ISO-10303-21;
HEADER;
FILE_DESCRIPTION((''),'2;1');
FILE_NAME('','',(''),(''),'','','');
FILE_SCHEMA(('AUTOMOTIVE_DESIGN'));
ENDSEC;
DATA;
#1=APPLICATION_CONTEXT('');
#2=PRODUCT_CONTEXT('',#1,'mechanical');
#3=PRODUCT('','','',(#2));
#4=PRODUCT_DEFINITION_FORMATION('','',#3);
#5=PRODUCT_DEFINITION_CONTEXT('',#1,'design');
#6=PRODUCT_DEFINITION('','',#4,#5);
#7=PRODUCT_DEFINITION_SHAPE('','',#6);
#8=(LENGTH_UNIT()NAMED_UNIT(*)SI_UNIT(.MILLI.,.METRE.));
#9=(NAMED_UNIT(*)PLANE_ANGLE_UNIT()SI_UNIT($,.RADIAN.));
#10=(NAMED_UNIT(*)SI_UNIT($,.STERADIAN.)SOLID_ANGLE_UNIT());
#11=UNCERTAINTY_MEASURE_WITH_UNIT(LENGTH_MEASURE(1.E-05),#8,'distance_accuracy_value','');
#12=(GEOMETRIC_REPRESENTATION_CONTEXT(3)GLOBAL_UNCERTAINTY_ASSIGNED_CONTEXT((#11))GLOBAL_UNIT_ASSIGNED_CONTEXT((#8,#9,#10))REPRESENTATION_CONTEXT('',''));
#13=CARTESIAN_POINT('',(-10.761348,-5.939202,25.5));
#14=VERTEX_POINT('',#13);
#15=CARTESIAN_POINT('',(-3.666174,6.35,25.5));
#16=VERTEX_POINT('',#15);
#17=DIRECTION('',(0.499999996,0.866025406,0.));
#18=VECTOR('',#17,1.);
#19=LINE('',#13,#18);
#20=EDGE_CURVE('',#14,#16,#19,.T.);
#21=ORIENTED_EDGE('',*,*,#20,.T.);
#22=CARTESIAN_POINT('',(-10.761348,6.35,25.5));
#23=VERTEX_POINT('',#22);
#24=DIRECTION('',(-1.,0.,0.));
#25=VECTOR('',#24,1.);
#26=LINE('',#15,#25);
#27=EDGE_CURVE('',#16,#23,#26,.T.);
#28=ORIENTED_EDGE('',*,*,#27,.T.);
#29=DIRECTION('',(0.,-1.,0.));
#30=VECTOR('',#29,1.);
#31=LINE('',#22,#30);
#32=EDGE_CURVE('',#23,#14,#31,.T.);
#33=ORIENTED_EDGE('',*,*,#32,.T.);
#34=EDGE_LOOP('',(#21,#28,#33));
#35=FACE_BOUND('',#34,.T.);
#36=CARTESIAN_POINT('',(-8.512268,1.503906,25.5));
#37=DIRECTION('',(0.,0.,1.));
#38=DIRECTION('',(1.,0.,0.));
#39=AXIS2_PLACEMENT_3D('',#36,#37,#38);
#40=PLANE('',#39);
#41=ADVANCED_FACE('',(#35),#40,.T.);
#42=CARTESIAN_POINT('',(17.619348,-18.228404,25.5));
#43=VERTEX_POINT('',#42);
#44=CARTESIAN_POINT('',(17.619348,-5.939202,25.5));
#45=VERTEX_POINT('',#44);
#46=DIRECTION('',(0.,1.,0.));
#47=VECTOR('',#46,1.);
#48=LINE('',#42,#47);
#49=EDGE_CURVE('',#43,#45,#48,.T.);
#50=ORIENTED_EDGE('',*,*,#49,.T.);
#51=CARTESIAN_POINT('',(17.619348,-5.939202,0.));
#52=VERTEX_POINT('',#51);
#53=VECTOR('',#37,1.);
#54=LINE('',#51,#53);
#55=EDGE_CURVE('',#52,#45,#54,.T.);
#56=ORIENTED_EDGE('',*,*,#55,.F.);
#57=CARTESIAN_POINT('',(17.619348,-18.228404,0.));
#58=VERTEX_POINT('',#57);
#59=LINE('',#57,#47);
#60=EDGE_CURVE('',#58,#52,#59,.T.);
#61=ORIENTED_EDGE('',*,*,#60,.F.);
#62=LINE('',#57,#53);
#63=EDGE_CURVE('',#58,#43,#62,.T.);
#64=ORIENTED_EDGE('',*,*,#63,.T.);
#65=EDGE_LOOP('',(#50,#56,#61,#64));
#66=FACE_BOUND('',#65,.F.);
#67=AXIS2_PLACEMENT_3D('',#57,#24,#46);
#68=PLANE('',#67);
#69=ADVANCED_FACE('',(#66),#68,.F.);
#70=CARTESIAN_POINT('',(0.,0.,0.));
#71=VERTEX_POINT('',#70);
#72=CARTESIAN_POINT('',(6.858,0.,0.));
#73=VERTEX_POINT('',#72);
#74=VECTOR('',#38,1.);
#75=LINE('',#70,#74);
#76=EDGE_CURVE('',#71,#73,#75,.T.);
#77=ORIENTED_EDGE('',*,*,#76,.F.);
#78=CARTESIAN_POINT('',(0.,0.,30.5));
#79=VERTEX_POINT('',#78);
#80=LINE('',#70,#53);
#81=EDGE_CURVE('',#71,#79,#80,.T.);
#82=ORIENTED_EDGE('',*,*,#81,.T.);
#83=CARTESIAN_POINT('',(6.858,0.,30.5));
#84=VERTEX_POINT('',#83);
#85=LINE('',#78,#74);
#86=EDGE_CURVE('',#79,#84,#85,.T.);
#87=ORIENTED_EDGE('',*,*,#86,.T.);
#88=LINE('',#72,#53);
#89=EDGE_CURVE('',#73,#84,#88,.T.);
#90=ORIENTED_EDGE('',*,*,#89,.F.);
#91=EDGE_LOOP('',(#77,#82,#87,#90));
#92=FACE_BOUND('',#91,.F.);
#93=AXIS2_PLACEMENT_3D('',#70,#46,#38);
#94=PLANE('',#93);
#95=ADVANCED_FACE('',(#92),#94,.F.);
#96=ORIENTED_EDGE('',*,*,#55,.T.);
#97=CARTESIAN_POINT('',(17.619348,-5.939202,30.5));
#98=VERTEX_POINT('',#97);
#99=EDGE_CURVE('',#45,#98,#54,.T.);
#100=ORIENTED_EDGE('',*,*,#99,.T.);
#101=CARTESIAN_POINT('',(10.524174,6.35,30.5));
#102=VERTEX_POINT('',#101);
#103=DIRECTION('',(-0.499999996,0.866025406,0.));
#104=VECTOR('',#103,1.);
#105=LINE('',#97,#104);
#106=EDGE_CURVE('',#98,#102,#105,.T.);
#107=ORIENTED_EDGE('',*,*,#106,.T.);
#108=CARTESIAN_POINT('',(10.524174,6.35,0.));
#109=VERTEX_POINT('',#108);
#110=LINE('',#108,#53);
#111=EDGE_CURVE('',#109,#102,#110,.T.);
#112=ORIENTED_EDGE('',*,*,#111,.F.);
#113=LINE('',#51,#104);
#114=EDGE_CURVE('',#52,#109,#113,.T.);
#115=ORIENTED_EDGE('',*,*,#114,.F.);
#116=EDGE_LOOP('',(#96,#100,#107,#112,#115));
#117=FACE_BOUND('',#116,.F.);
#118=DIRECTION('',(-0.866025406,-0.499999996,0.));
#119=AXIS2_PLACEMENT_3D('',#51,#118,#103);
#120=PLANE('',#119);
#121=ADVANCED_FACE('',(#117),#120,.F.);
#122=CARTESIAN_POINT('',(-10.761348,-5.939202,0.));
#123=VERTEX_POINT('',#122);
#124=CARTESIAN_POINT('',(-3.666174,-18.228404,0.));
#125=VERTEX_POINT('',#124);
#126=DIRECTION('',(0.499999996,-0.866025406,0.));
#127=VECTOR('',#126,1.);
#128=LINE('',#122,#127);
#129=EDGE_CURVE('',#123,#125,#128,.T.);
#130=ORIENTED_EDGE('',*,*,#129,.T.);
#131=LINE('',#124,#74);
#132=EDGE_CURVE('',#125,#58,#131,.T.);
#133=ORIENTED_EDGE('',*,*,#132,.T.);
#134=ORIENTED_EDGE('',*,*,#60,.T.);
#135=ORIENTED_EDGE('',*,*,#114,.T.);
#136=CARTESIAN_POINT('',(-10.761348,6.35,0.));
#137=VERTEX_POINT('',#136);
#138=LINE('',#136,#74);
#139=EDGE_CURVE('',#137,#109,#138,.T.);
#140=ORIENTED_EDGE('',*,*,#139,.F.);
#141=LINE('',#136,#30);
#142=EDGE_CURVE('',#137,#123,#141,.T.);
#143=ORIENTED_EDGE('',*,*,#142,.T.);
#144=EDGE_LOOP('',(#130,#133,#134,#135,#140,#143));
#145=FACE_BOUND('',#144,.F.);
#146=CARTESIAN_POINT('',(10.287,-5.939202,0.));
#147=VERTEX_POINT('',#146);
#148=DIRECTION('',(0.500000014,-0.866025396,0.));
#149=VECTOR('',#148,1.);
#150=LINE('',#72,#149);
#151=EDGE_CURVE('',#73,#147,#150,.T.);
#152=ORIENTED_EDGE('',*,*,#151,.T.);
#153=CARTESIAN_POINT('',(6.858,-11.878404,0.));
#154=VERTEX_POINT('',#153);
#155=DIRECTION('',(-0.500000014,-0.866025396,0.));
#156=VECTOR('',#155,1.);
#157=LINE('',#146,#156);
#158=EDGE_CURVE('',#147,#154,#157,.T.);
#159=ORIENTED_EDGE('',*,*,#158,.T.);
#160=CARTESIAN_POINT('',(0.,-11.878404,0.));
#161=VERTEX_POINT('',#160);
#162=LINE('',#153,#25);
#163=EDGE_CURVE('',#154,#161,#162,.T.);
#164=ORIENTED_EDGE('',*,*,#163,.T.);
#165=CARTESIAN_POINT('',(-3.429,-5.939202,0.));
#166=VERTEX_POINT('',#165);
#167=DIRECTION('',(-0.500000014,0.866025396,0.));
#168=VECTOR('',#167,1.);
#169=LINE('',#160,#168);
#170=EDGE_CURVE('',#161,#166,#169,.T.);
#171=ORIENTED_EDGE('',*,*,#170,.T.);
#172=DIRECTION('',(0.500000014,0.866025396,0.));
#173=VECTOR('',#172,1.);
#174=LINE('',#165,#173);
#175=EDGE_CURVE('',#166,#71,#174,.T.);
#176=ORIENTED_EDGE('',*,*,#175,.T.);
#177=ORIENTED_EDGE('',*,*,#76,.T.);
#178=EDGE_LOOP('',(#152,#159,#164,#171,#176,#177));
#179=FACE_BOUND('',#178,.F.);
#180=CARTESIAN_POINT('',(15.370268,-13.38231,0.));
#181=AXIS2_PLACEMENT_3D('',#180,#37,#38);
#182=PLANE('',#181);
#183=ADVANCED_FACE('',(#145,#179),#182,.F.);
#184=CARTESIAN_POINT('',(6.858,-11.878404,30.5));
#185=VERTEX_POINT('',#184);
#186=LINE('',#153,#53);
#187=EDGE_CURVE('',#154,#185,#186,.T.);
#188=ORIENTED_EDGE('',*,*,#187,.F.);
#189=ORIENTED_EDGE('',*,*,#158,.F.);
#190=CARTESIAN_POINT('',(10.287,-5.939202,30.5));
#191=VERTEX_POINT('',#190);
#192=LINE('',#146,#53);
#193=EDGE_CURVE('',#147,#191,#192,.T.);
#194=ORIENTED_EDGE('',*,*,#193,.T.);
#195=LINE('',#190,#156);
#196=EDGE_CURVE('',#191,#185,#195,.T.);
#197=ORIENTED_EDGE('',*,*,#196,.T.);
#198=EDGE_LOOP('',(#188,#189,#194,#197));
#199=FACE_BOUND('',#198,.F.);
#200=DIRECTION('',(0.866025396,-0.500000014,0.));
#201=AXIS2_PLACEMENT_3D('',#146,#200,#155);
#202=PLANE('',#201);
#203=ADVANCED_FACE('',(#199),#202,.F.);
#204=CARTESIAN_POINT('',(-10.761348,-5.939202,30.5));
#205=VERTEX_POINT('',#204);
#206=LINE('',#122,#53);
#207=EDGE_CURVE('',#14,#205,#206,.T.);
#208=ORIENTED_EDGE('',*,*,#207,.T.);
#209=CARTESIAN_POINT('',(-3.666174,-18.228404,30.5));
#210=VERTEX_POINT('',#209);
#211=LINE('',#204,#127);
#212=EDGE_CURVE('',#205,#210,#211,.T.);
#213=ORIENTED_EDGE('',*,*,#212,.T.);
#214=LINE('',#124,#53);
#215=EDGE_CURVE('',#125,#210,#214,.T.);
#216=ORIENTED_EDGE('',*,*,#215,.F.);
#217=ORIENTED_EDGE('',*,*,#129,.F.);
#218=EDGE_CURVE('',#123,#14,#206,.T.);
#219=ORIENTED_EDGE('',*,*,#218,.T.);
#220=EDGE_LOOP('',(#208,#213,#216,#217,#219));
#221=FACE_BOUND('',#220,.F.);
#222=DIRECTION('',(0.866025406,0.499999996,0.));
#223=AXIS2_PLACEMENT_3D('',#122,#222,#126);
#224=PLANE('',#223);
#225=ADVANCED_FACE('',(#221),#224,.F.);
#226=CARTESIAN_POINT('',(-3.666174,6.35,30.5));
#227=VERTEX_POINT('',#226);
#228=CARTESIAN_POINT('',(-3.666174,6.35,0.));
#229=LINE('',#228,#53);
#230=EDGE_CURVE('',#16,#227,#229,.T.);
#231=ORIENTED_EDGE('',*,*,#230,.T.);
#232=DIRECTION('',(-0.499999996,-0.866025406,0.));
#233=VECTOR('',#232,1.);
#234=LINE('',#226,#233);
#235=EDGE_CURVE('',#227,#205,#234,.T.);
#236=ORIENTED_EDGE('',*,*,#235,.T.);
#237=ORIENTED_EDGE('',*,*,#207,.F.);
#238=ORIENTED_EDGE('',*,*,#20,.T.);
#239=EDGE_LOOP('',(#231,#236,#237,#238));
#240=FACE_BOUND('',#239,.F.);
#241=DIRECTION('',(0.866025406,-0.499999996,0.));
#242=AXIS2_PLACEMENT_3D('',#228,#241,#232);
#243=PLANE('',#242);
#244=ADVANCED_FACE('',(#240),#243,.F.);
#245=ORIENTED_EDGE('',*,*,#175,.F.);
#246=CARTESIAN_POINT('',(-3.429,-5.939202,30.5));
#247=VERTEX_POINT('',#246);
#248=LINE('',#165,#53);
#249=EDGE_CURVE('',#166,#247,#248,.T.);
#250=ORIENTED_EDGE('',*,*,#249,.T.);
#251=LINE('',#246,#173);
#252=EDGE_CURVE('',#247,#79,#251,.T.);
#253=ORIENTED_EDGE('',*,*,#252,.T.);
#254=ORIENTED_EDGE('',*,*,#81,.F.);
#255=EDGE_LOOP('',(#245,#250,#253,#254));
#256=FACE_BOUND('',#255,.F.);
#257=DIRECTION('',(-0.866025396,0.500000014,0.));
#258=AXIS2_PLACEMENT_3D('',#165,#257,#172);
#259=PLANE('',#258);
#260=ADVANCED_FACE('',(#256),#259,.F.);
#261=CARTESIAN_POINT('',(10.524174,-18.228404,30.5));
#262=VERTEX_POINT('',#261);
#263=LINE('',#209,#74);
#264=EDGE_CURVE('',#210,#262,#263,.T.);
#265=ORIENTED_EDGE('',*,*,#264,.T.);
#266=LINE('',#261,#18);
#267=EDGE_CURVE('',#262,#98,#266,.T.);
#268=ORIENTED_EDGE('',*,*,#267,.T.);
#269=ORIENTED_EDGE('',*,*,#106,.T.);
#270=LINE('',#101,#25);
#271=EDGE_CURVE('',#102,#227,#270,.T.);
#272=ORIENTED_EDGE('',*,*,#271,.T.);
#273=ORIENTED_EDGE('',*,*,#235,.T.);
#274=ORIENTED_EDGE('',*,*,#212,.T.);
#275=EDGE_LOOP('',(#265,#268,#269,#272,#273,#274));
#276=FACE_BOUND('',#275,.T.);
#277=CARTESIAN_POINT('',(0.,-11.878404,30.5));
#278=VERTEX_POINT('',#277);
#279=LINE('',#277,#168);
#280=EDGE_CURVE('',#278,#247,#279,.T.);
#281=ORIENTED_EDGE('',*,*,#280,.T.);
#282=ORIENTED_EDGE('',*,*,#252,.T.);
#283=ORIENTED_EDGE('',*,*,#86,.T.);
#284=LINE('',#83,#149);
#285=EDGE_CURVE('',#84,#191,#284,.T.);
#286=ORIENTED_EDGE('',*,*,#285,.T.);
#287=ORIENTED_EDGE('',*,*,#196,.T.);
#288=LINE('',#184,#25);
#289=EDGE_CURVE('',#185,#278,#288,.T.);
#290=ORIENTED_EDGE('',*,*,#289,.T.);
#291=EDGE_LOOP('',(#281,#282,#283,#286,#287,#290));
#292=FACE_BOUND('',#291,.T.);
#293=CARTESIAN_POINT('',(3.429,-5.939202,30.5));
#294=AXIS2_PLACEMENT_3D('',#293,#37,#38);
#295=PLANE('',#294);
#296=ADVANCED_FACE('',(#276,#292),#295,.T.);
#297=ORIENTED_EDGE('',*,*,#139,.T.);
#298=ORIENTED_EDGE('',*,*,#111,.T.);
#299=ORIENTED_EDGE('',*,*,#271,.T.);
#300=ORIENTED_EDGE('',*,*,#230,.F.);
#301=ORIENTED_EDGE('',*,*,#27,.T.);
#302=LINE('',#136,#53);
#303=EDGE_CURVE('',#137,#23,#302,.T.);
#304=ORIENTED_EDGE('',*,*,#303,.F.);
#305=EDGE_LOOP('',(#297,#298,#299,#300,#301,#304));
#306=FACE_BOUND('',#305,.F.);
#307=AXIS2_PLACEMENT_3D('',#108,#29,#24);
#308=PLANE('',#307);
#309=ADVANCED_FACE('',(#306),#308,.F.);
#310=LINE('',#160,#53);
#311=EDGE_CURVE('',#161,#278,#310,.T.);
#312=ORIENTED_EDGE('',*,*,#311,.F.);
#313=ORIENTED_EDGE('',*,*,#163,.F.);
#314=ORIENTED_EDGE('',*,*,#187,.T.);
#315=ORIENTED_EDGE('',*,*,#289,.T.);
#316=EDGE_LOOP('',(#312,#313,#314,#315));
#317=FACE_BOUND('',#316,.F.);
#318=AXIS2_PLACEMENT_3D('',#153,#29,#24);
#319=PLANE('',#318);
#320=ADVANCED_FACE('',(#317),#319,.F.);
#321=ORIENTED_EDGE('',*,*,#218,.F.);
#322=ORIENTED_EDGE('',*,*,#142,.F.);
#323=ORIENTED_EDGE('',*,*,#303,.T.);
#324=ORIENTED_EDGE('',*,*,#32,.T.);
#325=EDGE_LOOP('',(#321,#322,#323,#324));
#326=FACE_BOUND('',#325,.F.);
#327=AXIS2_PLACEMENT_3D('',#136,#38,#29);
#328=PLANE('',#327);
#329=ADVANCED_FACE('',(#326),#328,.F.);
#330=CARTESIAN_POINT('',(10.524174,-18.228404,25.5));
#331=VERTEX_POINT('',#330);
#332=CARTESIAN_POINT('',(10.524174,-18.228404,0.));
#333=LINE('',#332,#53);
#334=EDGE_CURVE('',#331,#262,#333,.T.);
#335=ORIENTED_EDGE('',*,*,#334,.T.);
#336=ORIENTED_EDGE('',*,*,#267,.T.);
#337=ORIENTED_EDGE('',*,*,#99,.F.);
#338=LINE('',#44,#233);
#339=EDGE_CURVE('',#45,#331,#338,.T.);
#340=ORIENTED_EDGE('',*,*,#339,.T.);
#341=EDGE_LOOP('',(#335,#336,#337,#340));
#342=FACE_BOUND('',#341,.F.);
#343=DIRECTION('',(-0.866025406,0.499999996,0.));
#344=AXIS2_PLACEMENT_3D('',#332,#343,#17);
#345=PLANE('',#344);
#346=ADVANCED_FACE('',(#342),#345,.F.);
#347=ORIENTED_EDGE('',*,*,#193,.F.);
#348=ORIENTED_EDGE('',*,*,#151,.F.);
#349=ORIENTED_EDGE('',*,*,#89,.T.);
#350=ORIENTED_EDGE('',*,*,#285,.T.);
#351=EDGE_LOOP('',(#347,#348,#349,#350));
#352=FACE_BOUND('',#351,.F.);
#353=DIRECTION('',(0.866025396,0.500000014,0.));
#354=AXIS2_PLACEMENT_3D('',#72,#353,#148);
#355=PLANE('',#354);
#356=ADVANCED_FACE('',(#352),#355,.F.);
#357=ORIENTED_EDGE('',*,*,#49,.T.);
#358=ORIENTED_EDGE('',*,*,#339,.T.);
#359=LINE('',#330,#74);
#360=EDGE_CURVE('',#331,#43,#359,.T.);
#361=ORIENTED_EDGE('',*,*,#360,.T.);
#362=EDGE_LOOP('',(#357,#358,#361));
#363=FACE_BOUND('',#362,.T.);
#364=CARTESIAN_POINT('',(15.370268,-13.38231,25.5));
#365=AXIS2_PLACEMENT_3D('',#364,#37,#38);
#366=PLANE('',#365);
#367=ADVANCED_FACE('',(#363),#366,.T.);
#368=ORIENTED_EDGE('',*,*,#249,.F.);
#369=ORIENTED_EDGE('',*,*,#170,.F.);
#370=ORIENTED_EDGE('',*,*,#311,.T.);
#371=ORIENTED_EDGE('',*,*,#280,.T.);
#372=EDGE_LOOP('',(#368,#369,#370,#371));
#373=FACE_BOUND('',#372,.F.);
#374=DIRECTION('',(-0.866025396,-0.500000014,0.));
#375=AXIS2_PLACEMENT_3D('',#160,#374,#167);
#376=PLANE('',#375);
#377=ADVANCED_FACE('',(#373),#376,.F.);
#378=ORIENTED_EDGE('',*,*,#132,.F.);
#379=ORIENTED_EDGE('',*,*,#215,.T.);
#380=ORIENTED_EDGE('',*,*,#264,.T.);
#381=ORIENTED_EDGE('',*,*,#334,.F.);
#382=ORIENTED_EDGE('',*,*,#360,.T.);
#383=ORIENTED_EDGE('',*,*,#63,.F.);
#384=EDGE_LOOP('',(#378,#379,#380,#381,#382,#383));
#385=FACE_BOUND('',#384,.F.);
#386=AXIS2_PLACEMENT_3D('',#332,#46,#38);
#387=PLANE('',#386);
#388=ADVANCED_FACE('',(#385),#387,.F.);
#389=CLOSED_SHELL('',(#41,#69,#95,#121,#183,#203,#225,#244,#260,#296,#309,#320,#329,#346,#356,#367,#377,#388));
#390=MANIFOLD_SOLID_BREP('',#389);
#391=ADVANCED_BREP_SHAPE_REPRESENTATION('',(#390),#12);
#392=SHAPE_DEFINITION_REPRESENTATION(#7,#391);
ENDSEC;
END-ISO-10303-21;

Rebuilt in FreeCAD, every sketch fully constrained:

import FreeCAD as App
import Part
import Sketcher

V = App.Vector
Q = App.Units.Quantity

doc = App.newDocument("Part")
params = doc.addObject("Spreadsheet::Sheet", "Params")
for row, (alias, value) in enumerate([
    ("pad1_length", "30.5 mm"),
    ("pad2_length", "25.5 mm"),
], start=1):
    params.set(f"A{row}", alias)
    params.set(f"B{row}", "=" + value)
    params.setAlias(f"B{row}", alias)

body = doc.addObject("PartDesign::Body", "Body")

sketch1 = doc.addObject("Sketcher::SketchObject", "Sketch")
body.addObject(sketch1)
sketch1.AttachmentSupport = (doc.XY_Plane, [""])
sketch1.MapMode = "FlatFace"
sketch1.addGeometry(Part.LineSegment(V(10.524174, 6.35, 0), V(-3.666174, 6.35, 0)), False)
sketch1.addGeometry(Part.LineSegment(V(-3.666174, 6.35, 0), V(-10.761348, -5.939202, 0)), False)
sketch1.addGeometry(Part.LineSegment(V(-10.761348, -5.939202, 0), V(-3.666174, -18.228404, 0)), False)
sketch1.addGeometry(Part.LineSegment(V(-3.666174, -18.228404, 0), V(10.524174, -18.228404, 0)), False)
sketch1.addGeometry(Part.LineSegment(V(10.524174, -18.228404, 0), V(17.619348, -5.939202, 0)), False)
sketch1.addGeometry(Part.LineSegment(V(17.619348, -5.939202, 0), V(10.524174, 6.35, 0)), False)
sketch1.addGeometry(Part.LineSegment(V(0, -11.878404, 0), V(-3.429, -5.939202, 0)), False)
sketch1.addGeometry(Part.LineSegment(V(-3.429, -5.939202, 0), V(0, 0, 0)), False)
sketch1.addGeometry(Part.LineSegment(V(0, 0, 0), V(6.858, 0, 0)), False)
sketch1.addGeometry(Part.LineSegment(V(6.858, 0, 0), V(10.287, -5.939202, 0)), False)
sketch1.addGeometry(Part.LineSegment(V(10.287, -5.939202, 0), V(6.858, -11.878404, 0)), False)
sketch1.addGeometry(Part.LineSegment(V(6.858, -11.878404, 0), V(0, -11.878404, 0)), False)
sketch1.addConstraint(Sketcher.Constraint("Coincident", 0, 2, 1, 1))
sketch1.addConstraint(Sketcher.Constraint("Coincident", 1, 2, 2, 1))
sketch1.addConstraint(Sketcher.Constraint("Coincident", 2, 2, 3, 1))
sketch1.addConstraint(Sketcher.Constraint("Coincident", 3, 2, 4, 1))
sketch1.addConstraint(Sketcher.Constraint("Coincident", 4, 2, 5, 1))
sketch1.addConstraint(Sketcher.Constraint("Coincident", 5, 2, 0, 1))
sketch1.addConstraint(Sketcher.Constraint("Coincident", 6, 2, 7, 1))
sketch1.addConstraint(Sketcher.Constraint("Coincident", 7, 2, 8, 1))
sketch1.addConstraint(Sketcher.Constraint("Coincident", 8, 2, 9, 1))
sketch1.addConstraint(Sketcher.Constraint("Coincident", 9, 2, 10, 1))
sketch1.addConstraint(Sketcher.Constraint("Coincident", 10, 2, 11, 1))
sketch1.addConstraint(Sketcher.Constraint("Coincident", 11, 2, 6, 1))
sketch1.addConstraint(Sketcher.Constraint("Horizontal", 0))
sketch1.addConstraint(Sketcher.Constraint("Horizontal", 3))
sketch1.addConstraint(Sketcher.Constraint("Horizontal", 8))
sketch1.addConstraint(Sketcher.Constraint("Horizontal", 11))
sketch1.addConstraint(Sketcher.Constraint("Coincident", 7, 2, -1, 1))
sketch1.addConstraint(Sketcher.Constraint("PointOnObject", 11, 2, -2))
sketch1.addConstraint(Sketcher.Constraint("Parallel", 1, 4))
sketch1.addConstraint(Sketcher.Constraint("Parallel", 2, 5))
sketch1.addConstraint(Sketcher.Constraint("Parallel", 5, 6))
sketch1.addConstraint(Sketcher.Constraint("Parallel", 4, 7))
sketch1.addConstraint(Sketcher.Constraint("Parallel", 6, 9))
sketch1.addConstraint(Sketcher.Constraint("Parallel", 7, 10))
sketch1.addConstraint(Sketcher.Constraint("Horizontal", 1, 2, 4, 2))
sketch1.addConstraint(Sketcher.Constraint("Horizontal", 4, 2, 6, 2))
sketch1.addConstraint(Sketcher.Constraint("Horizontal", 6, 2, 9, 2))
sketch1.addConstraint(Sketcher.Constraint("Vertical", 0, 2, 2, 2))
sketch1.addConstraint(Sketcher.Constraint("Vertical", 3, 2, 5, 2))
sketch1.addConstraint(Sketcher.Constraint("Angle", 1, Q("-120 deg")))
sketch1.addConstraint(Sketcher.Constraint("DistanceX", 8, 1, 8, 2, 6.858))
sketch1.addConstraint(Sketcher.Constraint("DistanceY", -1, 1, 0, 2, 6.35))
sketch1.addConstraint(Sketcher.Constraint("Distance", 6, 6.858))
sketch1.addConstraint(Sketcher.Constraint("DistanceX", 0, 2, 0, 1, 14.190348))
sketch1.addConstraint(Sketcher.Constraint("DistanceX", 0, 2, -1, 1, 3.666174))
pad1 = doc.addObject("PartDesign::Pad", "Pad")
body.addObject(pad1)
pad1.Profile = sketch1
pad1.setExpression("Length", "Params.pad1_length")

sketch2 = doc.addObject("Sketcher::SketchObject", "Sketch001")
body.addObject(sketch2)
sketch2.AttachmentSupport = (doc.XY_Plane, [""])
sketch2.MapMode = "FlatFace"
sketch2.addGeometry(Part.LineSegment(V(17.619348, -18.228404, 0), V(17.619348, -5.939202, 0)), False)
sketch2.addGeometry(Part.LineSegment(V(17.619348, -5.939202, 0), V(10.524174, -18.228404, 0)), False)
sketch2.addGeometry(Part.LineSegment(V(10.524174, -18.228404, 0), V(17.619348, -18.228404, 0)), False)
sketch2.addGeometry(Part.LineSegment(V(-10.761348, -5.939202, 0), V(-3.666174, 6.35, 0)), False)
sketch2.addGeometry(Part.LineSegment(V(-3.666174, 6.35, 0), V(-10.761348, 6.35, 0)), False)
sketch2.addGeometry(Part.LineSegment(V(-10.761348, 6.35, 0), V(-10.761348, -5.939202, 0)), False)
sketch2.addConstraint(Sketcher.Constraint("Coincident", 0, 2, 1, 1))
sketch2.addConstraint(Sketcher.Constraint("Coincident", 1, 2, 2, 1))
sketch2.addConstraint(Sketcher.Constraint("Coincident", 2, 2, 0, 1))
sketch2.addConstraint(Sketcher.Constraint("Coincident", 3, 2, 4, 1))
sketch2.addConstraint(Sketcher.Constraint("Coincident", 4, 2, 5, 1))
sketch2.addConstraint(Sketcher.Constraint("Coincident", 5, 2, 3, 1))
sketch2.addConstraint(Sketcher.Constraint("Vertical", 0))
sketch2.addConstraint(Sketcher.Constraint("Horizontal", 2))
sketch2.addConstraint(Sketcher.Constraint("Horizontal", 4))
sketch2.addConstraint(Sketcher.Constraint("Vertical", 5))
sketch2.addConstraint(Sketcher.Constraint("Parallel", 1, 3))
sketch2.addConstraint(Sketcher.Constraint("Horizontal", 0, 2, 5, 2))
sketch2.addConstraint(Sketcher.Constraint("Equal", 2, 4))
sketch2.addConstraint(Sketcher.Constraint("Angle", 1, Q("-120 deg")))
sketch2.addConstraint(Sketcher.Constraint("DistanceY", -1, 1, 3, 2, 6.35))
sketch2.addConstraint(Sketcher.Constraint("Distance", 1, 14.190348))
sketch2.addConstraint(Sketcher.Constraint("DistanceX", 3, 2, 0, 2, 21.285522))
sketch2.addConstraint(Sketcher.Constraint("DistanceX", -1, 1, 0, 2, 17.619348))
pad2 = doc.addObject("PartDesign::Pad", "Pad001")
body.addObject(pad2)
pad2.Profile = sketch2
pad2.setExpression("Length", "Params.pad2_length")

doc.recompute()
